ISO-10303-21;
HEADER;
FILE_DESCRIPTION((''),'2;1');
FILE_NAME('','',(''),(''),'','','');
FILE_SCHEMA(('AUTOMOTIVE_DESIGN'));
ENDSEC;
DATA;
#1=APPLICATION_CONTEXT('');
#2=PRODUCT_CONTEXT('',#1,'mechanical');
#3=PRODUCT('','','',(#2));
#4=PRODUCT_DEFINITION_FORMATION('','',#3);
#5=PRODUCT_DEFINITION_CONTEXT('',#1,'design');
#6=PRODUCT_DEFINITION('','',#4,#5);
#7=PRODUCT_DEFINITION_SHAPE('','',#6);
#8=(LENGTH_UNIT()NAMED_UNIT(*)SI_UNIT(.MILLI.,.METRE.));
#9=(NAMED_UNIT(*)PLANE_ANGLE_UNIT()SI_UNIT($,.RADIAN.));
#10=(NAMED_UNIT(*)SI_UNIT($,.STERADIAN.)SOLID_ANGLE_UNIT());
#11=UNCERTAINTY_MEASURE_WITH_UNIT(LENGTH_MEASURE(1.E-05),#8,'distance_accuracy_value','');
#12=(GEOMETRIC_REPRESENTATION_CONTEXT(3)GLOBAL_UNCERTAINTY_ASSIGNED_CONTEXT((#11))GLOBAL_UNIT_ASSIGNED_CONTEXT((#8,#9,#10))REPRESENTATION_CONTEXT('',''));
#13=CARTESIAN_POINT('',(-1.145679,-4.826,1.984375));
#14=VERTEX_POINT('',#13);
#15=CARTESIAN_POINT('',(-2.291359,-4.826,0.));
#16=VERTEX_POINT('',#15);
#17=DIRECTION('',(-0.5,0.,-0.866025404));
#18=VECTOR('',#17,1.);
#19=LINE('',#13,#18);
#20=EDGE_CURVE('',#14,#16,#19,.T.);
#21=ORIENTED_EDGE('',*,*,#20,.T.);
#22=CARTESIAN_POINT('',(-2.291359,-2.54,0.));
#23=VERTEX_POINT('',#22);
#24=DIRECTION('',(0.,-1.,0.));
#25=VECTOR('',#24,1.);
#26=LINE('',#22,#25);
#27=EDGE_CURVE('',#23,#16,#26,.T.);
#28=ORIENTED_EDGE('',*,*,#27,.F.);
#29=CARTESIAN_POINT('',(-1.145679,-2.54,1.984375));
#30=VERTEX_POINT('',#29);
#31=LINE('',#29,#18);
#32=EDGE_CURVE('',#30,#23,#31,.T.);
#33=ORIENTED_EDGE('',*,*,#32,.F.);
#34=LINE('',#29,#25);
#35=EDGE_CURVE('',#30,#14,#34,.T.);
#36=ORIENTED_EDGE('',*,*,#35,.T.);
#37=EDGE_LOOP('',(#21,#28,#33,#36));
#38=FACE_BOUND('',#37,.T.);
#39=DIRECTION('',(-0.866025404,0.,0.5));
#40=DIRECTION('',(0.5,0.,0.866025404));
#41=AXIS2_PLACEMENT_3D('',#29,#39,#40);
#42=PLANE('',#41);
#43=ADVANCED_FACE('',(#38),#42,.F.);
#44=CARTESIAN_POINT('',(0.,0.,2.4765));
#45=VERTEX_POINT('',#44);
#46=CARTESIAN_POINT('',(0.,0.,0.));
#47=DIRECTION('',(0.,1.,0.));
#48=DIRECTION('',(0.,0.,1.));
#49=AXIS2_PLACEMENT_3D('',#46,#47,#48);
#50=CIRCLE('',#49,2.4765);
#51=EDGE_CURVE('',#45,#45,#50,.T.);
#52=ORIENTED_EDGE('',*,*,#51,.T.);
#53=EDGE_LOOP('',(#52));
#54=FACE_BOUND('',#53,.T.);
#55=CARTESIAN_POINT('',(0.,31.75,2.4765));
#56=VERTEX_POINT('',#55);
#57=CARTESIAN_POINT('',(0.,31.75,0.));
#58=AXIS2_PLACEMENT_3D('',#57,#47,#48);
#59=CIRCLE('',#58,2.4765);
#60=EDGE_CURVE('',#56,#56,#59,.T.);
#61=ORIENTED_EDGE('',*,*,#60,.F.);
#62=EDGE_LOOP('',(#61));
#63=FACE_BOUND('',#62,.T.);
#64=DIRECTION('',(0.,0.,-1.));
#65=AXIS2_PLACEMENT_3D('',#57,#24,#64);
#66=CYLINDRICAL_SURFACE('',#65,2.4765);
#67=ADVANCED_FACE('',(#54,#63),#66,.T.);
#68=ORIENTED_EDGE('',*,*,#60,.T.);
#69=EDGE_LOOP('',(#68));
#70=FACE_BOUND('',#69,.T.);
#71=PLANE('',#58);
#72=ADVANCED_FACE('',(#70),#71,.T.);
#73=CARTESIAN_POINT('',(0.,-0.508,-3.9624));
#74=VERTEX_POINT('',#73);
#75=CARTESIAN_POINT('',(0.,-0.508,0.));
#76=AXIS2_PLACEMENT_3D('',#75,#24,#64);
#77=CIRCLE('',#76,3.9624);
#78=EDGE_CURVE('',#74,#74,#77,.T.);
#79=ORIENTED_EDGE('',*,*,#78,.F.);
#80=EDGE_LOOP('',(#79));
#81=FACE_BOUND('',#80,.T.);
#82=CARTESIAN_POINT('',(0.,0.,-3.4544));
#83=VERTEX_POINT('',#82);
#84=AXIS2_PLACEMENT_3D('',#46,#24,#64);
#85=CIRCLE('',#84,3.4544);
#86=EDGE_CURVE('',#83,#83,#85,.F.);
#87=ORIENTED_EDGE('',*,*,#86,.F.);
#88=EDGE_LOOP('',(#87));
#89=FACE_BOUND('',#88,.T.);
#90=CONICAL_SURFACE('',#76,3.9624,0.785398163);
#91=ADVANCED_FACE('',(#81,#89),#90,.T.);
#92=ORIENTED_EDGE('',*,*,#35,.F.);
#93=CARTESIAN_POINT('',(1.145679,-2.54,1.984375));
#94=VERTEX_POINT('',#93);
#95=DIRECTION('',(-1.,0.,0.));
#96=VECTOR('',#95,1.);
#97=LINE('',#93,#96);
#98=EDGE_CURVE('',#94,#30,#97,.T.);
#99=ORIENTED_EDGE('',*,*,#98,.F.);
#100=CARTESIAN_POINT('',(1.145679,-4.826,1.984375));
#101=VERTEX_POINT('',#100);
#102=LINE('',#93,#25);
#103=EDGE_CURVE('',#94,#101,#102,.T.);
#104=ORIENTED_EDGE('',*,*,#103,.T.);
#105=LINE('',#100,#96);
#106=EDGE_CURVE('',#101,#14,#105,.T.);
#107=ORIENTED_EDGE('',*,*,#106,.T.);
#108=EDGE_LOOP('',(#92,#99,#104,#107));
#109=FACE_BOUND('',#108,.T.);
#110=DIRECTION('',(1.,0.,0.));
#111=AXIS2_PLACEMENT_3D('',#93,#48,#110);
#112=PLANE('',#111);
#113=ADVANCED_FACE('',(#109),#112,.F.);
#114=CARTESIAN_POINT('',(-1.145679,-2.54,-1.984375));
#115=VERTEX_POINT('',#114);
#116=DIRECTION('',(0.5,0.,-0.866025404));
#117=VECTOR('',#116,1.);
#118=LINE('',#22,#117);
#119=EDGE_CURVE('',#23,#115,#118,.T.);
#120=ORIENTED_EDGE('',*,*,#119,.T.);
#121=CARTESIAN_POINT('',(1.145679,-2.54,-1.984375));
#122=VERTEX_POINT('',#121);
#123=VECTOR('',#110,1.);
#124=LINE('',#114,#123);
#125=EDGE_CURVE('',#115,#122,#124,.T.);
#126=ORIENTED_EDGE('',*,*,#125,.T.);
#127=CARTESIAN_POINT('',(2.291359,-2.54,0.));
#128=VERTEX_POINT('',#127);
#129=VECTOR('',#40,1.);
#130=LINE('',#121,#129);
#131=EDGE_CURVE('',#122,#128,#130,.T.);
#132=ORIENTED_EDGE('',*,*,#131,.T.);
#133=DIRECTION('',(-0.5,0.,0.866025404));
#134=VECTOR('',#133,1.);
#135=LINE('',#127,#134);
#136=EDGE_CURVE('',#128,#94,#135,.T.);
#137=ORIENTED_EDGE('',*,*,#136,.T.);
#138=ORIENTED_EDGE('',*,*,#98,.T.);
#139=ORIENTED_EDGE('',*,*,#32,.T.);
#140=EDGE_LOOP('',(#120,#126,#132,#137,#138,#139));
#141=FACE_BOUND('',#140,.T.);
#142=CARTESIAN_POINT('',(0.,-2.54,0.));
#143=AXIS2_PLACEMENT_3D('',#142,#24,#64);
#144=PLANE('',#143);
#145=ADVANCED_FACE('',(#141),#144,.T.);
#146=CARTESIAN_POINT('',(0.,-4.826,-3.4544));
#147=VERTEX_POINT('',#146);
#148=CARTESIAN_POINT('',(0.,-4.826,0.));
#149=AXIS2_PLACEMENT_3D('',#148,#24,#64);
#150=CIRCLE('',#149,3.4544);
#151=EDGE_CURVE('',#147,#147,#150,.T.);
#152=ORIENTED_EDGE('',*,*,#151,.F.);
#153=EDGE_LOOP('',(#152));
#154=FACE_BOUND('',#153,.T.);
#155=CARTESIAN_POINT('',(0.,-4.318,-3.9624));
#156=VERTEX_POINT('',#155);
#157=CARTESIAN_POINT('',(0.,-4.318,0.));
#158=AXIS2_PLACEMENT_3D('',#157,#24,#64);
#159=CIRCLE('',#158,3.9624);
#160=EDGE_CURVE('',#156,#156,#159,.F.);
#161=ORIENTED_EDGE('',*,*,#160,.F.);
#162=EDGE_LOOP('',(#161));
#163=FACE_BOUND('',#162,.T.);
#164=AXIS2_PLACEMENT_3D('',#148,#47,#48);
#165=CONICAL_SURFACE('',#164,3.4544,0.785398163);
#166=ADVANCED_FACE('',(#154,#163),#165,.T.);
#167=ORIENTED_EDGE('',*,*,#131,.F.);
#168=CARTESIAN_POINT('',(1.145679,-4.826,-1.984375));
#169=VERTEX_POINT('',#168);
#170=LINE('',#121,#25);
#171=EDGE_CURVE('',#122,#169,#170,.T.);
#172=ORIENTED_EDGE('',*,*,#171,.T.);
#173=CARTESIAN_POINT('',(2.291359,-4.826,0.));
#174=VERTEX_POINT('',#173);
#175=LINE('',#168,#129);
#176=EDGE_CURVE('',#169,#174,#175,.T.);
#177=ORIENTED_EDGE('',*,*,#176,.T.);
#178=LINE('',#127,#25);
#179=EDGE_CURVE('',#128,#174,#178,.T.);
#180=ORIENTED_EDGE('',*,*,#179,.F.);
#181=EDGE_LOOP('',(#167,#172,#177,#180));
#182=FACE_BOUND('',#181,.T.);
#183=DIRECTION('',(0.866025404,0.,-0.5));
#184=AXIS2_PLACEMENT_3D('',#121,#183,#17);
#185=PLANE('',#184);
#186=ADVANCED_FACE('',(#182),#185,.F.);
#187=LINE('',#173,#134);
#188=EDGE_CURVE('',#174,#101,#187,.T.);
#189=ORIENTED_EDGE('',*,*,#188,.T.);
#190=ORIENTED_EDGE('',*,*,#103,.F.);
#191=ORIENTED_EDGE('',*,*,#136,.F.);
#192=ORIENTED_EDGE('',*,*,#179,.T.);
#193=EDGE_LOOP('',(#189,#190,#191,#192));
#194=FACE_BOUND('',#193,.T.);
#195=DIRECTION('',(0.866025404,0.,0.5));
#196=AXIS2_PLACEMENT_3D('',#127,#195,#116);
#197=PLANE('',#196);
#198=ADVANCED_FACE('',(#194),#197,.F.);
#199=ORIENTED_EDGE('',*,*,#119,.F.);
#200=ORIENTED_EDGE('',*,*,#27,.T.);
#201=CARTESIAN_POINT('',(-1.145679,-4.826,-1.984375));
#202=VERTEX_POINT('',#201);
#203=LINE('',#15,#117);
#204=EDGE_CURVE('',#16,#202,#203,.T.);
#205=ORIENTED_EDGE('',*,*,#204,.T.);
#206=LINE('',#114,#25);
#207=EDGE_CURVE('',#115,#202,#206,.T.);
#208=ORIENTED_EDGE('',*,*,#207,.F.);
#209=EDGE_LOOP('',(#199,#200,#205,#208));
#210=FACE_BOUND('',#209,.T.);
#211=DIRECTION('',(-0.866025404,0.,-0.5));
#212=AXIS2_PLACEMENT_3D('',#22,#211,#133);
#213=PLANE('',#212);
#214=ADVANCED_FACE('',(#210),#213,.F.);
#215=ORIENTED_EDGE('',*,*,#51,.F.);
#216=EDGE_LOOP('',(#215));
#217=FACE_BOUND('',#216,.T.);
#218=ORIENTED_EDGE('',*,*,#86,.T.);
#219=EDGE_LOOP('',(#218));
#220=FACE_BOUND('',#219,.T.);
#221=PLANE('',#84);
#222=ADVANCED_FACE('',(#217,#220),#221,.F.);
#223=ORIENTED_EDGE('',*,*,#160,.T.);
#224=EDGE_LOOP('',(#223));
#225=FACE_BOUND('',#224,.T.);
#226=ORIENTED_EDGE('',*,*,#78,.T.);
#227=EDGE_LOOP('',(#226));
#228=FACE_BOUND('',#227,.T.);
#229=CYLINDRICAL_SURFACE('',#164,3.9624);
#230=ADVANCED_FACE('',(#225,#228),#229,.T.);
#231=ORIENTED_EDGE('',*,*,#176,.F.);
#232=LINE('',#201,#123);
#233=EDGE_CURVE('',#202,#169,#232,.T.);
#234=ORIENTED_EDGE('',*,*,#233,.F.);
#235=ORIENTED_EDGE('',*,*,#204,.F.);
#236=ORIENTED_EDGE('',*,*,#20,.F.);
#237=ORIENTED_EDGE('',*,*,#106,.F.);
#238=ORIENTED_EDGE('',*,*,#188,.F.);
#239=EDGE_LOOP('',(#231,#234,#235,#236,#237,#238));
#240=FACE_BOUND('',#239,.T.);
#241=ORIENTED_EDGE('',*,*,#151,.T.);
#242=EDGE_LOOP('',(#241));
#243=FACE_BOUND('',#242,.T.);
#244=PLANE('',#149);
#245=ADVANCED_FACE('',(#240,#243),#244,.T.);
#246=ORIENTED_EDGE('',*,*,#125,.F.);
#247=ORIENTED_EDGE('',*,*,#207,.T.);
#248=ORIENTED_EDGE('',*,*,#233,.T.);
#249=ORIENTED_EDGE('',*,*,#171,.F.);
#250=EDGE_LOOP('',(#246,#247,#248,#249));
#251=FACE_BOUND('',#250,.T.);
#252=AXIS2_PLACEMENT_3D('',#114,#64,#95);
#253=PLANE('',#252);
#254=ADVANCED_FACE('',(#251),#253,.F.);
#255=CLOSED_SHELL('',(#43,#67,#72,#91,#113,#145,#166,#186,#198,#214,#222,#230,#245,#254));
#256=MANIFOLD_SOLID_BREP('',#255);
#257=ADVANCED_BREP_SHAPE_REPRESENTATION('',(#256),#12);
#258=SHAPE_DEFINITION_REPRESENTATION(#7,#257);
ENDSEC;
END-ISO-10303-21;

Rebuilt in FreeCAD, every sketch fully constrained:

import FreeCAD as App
import Part
import Sketcher

V = App.Vector
Q = App.Units.Quantity


def edges_at(feature, points):
    """Names of the edges that pass closest to the given points."""
    edges = feature.Shape.Edges
    near = lambda p: min(range(len(edges)), key=lambda i: edges[i].distToShape(Part.Vertex(*p))[0])
    return sorted({f"Edge{near(p) + 1}" for p in points})

doc = App.newDocument("Part")
body = doc.addObject("PartDesign::Body", "Body")

# Sketch on XZ plane
sketch1 = body.newObject("Sketcher::SketchObject", "Sketch")
sketch1.AttachmentSupport = (doc.getObject("XZ_Plane"), [""])
sketch1.MapMode = "FlatFace"
sketch1.addGeometry(Part.Circle(V(0, 0, 0), V(0, 0, 1), 2.5), False)
sketch1.addConstraint([
    Sketcher.Constraint("Coincident", 0, 3, -1, 1),
    Sketcher.Constraint("Diameter", 0, Q("0.195 in")),
])
pad1 = body.newObject("PartDesign::Pad", "Pad")
pad1.Profile = sketch1
pad1.Length = Q("1.25 in")
pad1.Reversed = True

# Sketch on XZ plane
sketch2 = body.newObject("Sketcher::SketchObject", "Sketch001")
sketch2.AttachmentSupport = (doc.getObject("XZ_Plane"), [""])
sketch2.MapMode = "FlatFace"
sketch2.addGeometry(Part.Circle(V(0, 0, 0), V(0, 0, 1), 4), False)
sketch2.addConstraint([
    Sketcher.Constraint("Coincident", 0, 3, -1, 1),
    Sketcher.Constraint("Diameter", 0, Q("0.312 in")),
])
pad2 = body.newObject("PartDesign::Pad", "Pad001")
pad2.Profile = sketch2
pad2.Length = Q("0.19 in")

# Sketch on XZ plane
sketch3 = body.newObject("Sketcher::SketchObject", "Sketch002")
sketch3.AttachmentSupport = (doc.getObject("XZ_Plane"), [""])
sketch3.MapMode = "FlatFace"
sketch3.AttachmentOffset = App.Placement(V(0, 0, 0.19 * 25.4), App.Rotation())
sketch3.addGeometry([
    Part.LineSegment(V(2.3, 0, 0), V(1.1, 2, 0)),  # 0
    Part.LineSegment(V(1.1, 2, 0), V(-1.1, 2, 0)),  # 1
    Part.LineSegment(V(-1.1, 2, 0), V(-2.3, 0, 0)),  # 2
    Part.LineSegment(V(-2.3, 0, 0), V(-1.1, -2, 0)),  # 3
    Part.LineSegment(V(-1.1, -2, 0), V(1.1, -2, 0)),  # 4
    Part.LineSegment(V(1.1, -2, 0), V(2.3, 0, 0)),  # 5
], False)
sketch3.addConstraint([
    Sketcher.Constraint("Coincident", 0, 2, 1, 1),
    Sketcher.Constraint("Coincident", 1, 2, 2, 1),
    Sketcher.Constraint("Coincident", 2, 2, 3, 1),
    Sketcher.Constraint("Coincident", 3, 2, 4, 1),
    Sketcher.Constraint("Coincident", 4, 2, 5, 1),
    Sketcher.Constraint("Coincident", 5, 2, 0, 1),
    Sketcher.Constraint("Horizontal", 1),
    Sketcher.Constraint("Horizontal", 4),
    Sketcher.Constraint("Symmetric", 0, 2, 3, 2, -1, 1),
    Sketcher.Constraint("Symmetric", 2, 2, 5, 2, -1, 1),
    Sketcher.Constraint("PointOnObject", 2, 2, -1),
    Sketcher.Constraint("Parallel", 2, 5),
    Sketcher.Constraint("Vertical", 1, 2, 3, 2),
    Sketcher.Constraint("Angle", 0, Q("120 deg")),
    Sketcher.Constraint("DistanceY", -1, 1, 0, 2, Q("0.078125 in")),
    Sketcher.Constraint("DistanceX", 1, 2, 1, 1, Q("2.291359 mm")),
])
pocket1 = body.newObject("PartDesign::Pocket", "Pocket")
pocket1.Profile = sketch3
pocket1.Length = Q("0.09 in")
doc.recompute()

chamfer = body.newObject("PartDesign::Chamfer", "Chamfer")
chamfer.Base = (pocket1, edges_at(pocket1, [(0, 0, 3.962), (0, -4.826, 3.962)]))
chamfer.Size = Q("0.02 in")

doc.recompute()
